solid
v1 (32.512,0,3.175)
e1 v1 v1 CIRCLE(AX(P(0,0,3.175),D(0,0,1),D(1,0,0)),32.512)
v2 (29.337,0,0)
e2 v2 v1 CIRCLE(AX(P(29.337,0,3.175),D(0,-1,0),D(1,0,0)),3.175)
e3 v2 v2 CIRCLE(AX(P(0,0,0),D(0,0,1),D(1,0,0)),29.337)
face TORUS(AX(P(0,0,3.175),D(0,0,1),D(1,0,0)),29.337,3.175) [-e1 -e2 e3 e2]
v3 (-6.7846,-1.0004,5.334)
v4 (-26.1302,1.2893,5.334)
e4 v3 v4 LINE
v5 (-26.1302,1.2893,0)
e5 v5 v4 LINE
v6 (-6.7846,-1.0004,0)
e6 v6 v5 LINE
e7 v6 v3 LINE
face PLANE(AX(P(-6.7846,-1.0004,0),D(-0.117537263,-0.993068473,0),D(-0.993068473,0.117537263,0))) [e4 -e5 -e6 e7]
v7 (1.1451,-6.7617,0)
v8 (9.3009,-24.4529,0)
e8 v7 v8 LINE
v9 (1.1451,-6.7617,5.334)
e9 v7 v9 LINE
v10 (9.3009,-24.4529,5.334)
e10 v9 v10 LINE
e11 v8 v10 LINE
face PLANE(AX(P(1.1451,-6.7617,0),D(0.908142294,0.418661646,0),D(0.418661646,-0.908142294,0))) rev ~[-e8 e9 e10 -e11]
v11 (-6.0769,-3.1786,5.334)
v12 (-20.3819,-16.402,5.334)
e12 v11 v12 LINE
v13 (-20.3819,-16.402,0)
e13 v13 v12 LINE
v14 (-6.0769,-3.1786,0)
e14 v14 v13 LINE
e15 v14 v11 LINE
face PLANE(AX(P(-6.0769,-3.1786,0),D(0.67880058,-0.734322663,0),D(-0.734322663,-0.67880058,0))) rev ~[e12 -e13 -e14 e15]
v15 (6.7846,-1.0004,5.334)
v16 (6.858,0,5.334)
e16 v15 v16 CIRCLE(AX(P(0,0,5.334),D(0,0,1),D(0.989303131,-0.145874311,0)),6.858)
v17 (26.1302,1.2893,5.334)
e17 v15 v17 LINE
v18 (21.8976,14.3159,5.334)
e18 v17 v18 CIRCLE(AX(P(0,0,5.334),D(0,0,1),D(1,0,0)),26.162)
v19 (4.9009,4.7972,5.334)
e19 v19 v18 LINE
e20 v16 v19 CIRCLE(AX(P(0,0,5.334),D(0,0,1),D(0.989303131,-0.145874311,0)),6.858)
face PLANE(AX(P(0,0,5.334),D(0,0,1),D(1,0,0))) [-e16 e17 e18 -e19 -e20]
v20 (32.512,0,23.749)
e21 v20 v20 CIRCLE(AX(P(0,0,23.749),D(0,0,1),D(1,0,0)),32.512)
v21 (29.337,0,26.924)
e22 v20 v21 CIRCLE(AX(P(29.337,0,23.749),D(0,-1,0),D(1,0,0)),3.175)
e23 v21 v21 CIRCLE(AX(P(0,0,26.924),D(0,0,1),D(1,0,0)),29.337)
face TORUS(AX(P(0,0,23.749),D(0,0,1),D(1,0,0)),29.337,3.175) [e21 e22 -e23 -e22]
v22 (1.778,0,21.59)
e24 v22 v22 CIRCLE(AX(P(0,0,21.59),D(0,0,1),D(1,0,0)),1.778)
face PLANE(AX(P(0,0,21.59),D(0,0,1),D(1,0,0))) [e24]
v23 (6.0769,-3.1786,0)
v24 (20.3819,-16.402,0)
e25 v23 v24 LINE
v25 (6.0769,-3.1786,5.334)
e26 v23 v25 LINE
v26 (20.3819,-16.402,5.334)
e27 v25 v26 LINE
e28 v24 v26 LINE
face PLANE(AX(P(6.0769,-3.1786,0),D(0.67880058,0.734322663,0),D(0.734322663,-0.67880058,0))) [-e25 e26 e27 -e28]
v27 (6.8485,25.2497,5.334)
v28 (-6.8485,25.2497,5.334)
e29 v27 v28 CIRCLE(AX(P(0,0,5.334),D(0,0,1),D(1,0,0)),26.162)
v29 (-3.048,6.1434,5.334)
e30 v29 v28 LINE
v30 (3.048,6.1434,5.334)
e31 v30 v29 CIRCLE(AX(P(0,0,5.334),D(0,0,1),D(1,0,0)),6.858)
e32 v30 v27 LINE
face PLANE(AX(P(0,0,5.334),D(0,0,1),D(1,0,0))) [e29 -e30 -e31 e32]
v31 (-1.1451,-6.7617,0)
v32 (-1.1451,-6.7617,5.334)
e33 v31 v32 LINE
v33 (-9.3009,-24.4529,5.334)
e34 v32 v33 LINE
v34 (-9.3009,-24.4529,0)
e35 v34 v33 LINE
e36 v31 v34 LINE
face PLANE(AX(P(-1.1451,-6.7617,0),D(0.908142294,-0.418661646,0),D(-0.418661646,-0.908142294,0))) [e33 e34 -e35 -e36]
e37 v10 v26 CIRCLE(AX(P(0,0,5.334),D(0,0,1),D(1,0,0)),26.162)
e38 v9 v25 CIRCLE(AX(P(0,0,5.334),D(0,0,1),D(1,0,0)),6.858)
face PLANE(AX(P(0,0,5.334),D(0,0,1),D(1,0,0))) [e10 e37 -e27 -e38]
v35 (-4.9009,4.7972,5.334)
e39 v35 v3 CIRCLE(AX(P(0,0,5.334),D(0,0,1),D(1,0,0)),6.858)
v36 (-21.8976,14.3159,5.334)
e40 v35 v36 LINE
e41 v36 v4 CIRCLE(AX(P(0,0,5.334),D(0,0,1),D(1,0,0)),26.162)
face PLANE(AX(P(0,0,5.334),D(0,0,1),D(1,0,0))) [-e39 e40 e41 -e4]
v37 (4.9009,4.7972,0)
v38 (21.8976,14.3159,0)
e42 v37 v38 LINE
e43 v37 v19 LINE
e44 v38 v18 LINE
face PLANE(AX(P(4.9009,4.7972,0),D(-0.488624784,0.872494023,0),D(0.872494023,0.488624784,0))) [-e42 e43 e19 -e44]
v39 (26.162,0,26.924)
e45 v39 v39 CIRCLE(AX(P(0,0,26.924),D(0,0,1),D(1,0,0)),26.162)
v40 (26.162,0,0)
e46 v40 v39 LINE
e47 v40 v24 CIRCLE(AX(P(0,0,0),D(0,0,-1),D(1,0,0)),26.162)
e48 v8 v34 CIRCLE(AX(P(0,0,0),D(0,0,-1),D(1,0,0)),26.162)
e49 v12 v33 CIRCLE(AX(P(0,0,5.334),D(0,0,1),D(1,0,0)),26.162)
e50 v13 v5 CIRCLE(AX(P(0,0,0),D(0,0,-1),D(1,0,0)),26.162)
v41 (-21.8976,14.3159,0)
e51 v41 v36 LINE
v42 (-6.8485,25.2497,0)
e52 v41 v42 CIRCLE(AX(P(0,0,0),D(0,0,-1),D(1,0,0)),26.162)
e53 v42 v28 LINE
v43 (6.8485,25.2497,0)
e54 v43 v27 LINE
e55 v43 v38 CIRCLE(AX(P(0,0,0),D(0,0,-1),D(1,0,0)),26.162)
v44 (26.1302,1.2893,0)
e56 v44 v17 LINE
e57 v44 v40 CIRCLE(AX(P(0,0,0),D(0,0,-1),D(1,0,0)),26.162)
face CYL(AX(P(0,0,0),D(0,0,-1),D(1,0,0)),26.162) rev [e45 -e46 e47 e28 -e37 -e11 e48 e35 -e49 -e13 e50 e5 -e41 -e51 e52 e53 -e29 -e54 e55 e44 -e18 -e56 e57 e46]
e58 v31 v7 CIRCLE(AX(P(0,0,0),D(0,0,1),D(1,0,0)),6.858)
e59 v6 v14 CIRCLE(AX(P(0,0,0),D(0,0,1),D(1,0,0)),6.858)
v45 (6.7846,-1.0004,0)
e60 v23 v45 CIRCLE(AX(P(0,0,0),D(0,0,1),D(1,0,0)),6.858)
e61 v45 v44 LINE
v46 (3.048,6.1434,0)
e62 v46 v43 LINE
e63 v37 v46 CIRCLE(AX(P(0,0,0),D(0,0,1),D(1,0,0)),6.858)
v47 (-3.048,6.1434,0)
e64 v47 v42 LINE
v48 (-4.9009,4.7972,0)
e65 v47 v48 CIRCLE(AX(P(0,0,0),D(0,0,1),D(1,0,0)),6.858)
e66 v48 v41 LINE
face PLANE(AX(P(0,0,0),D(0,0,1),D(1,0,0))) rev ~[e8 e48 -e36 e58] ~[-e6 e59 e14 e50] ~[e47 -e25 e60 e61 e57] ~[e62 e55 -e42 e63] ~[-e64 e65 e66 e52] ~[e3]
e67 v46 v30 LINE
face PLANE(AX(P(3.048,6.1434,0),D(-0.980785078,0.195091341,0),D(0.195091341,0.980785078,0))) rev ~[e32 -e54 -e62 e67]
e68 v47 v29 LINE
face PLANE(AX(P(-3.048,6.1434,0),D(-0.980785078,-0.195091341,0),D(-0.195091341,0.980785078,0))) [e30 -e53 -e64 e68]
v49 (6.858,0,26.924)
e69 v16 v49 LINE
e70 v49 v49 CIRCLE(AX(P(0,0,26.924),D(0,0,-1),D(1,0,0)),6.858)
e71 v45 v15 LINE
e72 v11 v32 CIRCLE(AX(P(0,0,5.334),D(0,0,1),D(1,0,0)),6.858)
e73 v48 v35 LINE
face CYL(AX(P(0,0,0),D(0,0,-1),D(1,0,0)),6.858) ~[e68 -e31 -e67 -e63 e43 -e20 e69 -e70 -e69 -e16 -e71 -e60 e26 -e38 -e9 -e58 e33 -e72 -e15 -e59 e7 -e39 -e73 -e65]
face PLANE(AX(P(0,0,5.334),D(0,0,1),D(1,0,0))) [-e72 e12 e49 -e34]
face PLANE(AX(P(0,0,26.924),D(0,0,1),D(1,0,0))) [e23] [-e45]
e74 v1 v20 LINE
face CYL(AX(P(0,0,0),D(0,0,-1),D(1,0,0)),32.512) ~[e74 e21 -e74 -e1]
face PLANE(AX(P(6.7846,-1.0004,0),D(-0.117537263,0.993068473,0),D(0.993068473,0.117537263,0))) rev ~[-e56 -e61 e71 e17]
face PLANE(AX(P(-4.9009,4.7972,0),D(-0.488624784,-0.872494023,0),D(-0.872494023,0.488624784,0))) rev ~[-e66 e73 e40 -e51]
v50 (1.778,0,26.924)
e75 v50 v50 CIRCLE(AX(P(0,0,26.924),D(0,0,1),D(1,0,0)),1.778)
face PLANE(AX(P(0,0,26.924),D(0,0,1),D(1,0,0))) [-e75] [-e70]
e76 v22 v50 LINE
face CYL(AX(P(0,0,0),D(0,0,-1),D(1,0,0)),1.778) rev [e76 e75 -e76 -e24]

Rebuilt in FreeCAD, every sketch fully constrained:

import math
import FreeCAD as App
import Part
import Sketcher
from FreeCAD import Vector
Q = App.Units.Quantity


def edges_at(feature, points):
    """Names of the edges that pass closest to the given points."""
    edges = feature.Shape.Edges
    near = lambda p: min(range(len(edges)), key=lambda i: edges[i].distToShape(Part.Vertex(*p))[0])
    return sorted({f"Edge{near(p) + 1}" for p in points})

doc = App.newDocument("Part")
body = doc.addObject("PartDesign::Body", "Body")
body.AllowCompound = True

sketch1 = body.newObject("Sketcher::SketchObject", "Sketch")
sketch1.AttachmentSupport = (doc.getObject("XY_Plane"), [""])
sketch1.MapMode = "FlatFace"
sketch1.addGeometry([
    Part.Circle(Vector(0, 0, 0), Vector(0, 0, 1), 32.5),
    Part.Circle(Vector(0, 0, 0), Vector(0, 0, 1), 26.2),
    Part.Circle(Vector(0, 0, 0), Vector(0, 0, 1), 6.9),
    Part.Circle(Vector(0, 0, 0), Vector(0, 0, 1), 1.8),
], False)
sketch1.addConstraint([
    Sketcher.Constraint("Coincident", 0, 3, -1, 1),
    Sketcher.Constraint("Coincident", 1, 3, -1, 1),
    Sketcher.Constraint("Coincident", 2, 3, -1, 1),
    Sketcher.Constraint("Coincident", 3, 3, -1, 1),
    Sketcher.Constraint("Diameter", 0, Q("2.56 in")),
    Sketcher.Constraint("Diameter", 2, Q("0.54 in")),
    Sketcher.Constraint("Diameter", 3, Q("0.14 in")),
    Sketcher.Constraint("Diameter", 1, Q("2.06 in")),
])
pad1 = body.newObject("PartDesign::Pad", "Pad")
pad1.Profile = sketch1
pad1.Length = Q("1.06 in")

sketch2 = body.newObject("Sketcher::SketchObject", "Sketch001")
sketch2.AttachmentSupport = (doc.getObject("XY_Plane"), [""])
sketch2.MapMode = "FlatFace"
sketch2.addGeometry(Part.Circle(Vector(0, 0, 0), Vector(0, 0, 1), 1.8), False)
sketch2.addConstraint([
    Sketcher.Constraint("Coincident", 0, 3, -1, 1),
    Sketcher.Constraint("Diameter", 0, Q("0.14 in")),
])
pad2 = body.newObject("PartDesign::Pad", "Pad001")
pad2.Profile = sketch2
pad2.Length = Q("0.85 in")

sketch3 = body.newObject("Sketcher::SketchObject", "Sketch002")
sketch3.AttachmentSupport = (doc.getObject("XY_Plane"), [""])
sketch3.MapMode = "FlatFace"
sketch3.addGeometry([
    Part.LineSegment(Vector(7, -1, 0), Vector(26, 1, 0)),
    Part.ArcOfCircle(Part.Circle(Vector(0, 0, 0), Vector(0, 0, 1), 26), math.radians(3), math.radians(33)),
    Part.LineSegment(Vector(22, 14, 0), Vector(5, 5, 0)),
    Part.ArcOfCircle(Part.Circle(Vector(0, 0, 0), Vector(0, 0, 1), 7), math.radians(-8), math.radians(44)),
    Part.ArcOfCircle(Part.Circle(Vector(0, 0, 0), Vector(0, 0, 1), 26), math.radians(-69), math.radians(-39)),
    Part.LineSegment(Vector(20, -16, 0), Vector(6, -3, 0)),
    Part.ArcOfCircle(Part.Circle(Vector(0, 0, 0), Vector(0, 0, 1), 7), math.radians(-80), math.radians(-28)),
    Part.LineSegment(Vector(1, -7, 0), Vector(9, -24, 0)),
    Part.LineSegment(Vector(3, 6, 0), Vector(7, 25, 0)),
    Part.ArcOfCircle(Part.Circle(Vector(0, 0, 0), Vector(0, 0, 1), 26), math.radians(75), math.radians(105)),
    Part.LineSegment(Vector(-7, 25, 0), Vector(-3, 6, 0)),
    Part.ArcOfCircle(Part.Circle(Vector(0, 0, 0), Vector(0, 0, 1), 7), math.radians(64), math.radians(116)),
    Part.ArcOfCircle(Part.Circle(Vector(0, 0, 0), Vector(0, 0, 1), 26), math.radians(-141), math.radians(-111)),
    Part.LineSegment(Vector(-9, -24, 0), Vector(-1, -7, 0)),
    Part.ArcOfCircle(Part.Circle(Vector(0, 0, 0), Vector(0, 0, 1), 7), math.radians(-152), math.radians(-100)),
    Part.LineSegment(Vector(-6, -3, 0), Vector(-20, -16, 0)),
    Part.LineSegment(Vector(-5, 5, 0), Vector(-22, 14, 0)),
    Part.ArcOfCircle(Part.Circle(Vector(0, 0, 0), Vector(0, 0, 1), 26), math.radians(147), math.radians(177)),
    Part.LineSegment(Vector(-26, 1, 0), Vector(-7, -1, 0)),
    Part.ArcOfCircle(Part.Circle(Vector(0, 0, 0), Vector(0, 0, 1), 7), math.radians(136), math.radians(188)),
], False)
sketch3.addConstraint([
    Sketcher.Constraint("Coincident", 0, 2, 1, 1),
    Sketcher.Constraint("Coincident", 1, 2, 2, 1),
    Sketcher.Constraint("Coincident", 2, 2, 3, 2),
    Sketcher.Constraint("Coincident", 3, 1, 0, 1),
    Sketcher.Constraint("Coincident", 4, 2, 5, 1),
    Sketcher.Constraint("Coincident", 5, 2, 6, 2),
    Sketcher.Constraint("Coincident", 6, 1, 7, 1),
    Sketcher.Constraint("Coincident", 7, 2, 4, 1),
    Sketcher.Constraint("Coincident", 8, 2, 9, 1),
    Sketcher.Constraint("Coincident", 9, 2, 10, 1),
    Sketcher.Constraint("Coincident", 10, 2, 11, 2),
    Sketcher.Constraint("Coincident", 11, 1, 8, 1),
    Sketcher.Constraint("Coincident", 12, 2, 13, 1),
    Sketcher.Constraint("Coincident", 13, 2, 14, 2),
    Sketcher.Constraint("Coincident", 14, 1, 15, 1),
    Sketcher.Constraint("Coincident", 15, 2, 12, 1),
    Sketcher.Constraint("Coincident", 16, 2, 17, 1),
    Sketcher.Constraint("Coincident", 17, 2, 18, 1),
    Sketcher.Constraint("Coincident", 18, 2, 19, 2),
    Sketcher.Constraint("Coincident", 19, 1, 16, 1),
    Sketcher.Constraint("Coincident", 1, 3, -1, 1),
    Sketcher.Constraint("Coincident", 3, 3, -1, 1),
    Sketcher.Constraint("Coincident", 4, 3, -1, 1),
    Sketcher.Constraint("Coincident", 6, 3, -1, 1),
    Sketcher.Constraint("Coincident", 9, 3, -1, 1),
    Sketcher.Constraint("Coincident", 11, 3, -1, 1),
    Sketcher.Constraint("Coincident", 12, 3, -1, 1),
    Sketcher.Constraint("Coincident", 14, 3, -1, 1),
    Sketcher.Constraint("Coincident", 17, 3, -1, 1),
    Sketcher.Constraint("Coincident", 19, 3, -1, 1),
    Sketcher.Constraint("Equal", 1, 4),
    Sketcher.Constraint("Equal", 3, 6),
    Sketcher.Constraint("Equal", 4, 9),
    Sketcher.Constraint("Equal", 6, 11),
    Sketcher.Constraint("Equal", 9, 12),
    Sketcher.Constraint("Equal", 11, 14),
    Sketcher.Constraint("Equal", 12, 17),
    Sketcher.Constraint("Equal", 14, 19),
    Sketcher.Constraint("Horizontal", 8, 2, 9, 2),
    Sketcher.Constraint("Horizontal", 10, 2, 11, 1),
    Sketcher.Constraint("Horizontal", 7, 2, 12, 2),
    Sketcher.Constraint("Horizontal", 6, 1, 13, 2),
    Sketcher.Constraint("Horizontal", 5, 2, 14, 1),
    Sketcher.Constraint("Horizontal", 4, 2, 15, 2),
    Sketcher.Constraint("Horizontal", 1, 2, 16, 2),
    Sketcher.Constraint("Horizontal", 0, 2, 17, 2),
    Sketcher.Constraint("Horizontal", 3, 1, 18, 2),
    Sketcher.Constraint("Horizontal", 2, 2, 19, 1),
    Sketcher.Constraint("Equal", 0, 2),
    Sketcher.Constraint("Equal", 2, 5),
    Sketcher.Constraint("Equal", 5, 7),
    Sketcher.Constraint("Equal", 7, 8),
    Sketcher.Constraint("Radius", 3, Q("0.27 in")),
    Sketcher.Constraint("DistanceX", 10, 2, -1, 1, Q("0.12 in")),
    Sketcher.Constraint("Radius", 1, Q("1.03 in")),
    Sketcher.Constraint("Angle", 0, Q("6.75 deg")),
    Sketcher.Constraint("Angle", 2, Q("-150.7498 deg")),
    Sketcher.Constraint("Angle", 5, Q("137.25 deg")),
    Sketcher.Constraint("Angle", 7, Q("-65.2499 deg")),
    Sketcher.Constraint("Angle", 8, Q("78.75 deg")),
])
pad3 = body.newObject("PartDesign::Pad", "Pad002")
pad3.Profile = sketch3
pad3.Length = Q("0.21 in")
doc.recompute()

fillet = body.newObject("PartDesign::Fillet", "Fillet")
fillet.Base = (pad3, edges_at(pad3, [(-32.512, 0, 26.924), (-32.512, 0, 0)]))
fillet.Radius = Q("0.125 in")

doc.recompute()
